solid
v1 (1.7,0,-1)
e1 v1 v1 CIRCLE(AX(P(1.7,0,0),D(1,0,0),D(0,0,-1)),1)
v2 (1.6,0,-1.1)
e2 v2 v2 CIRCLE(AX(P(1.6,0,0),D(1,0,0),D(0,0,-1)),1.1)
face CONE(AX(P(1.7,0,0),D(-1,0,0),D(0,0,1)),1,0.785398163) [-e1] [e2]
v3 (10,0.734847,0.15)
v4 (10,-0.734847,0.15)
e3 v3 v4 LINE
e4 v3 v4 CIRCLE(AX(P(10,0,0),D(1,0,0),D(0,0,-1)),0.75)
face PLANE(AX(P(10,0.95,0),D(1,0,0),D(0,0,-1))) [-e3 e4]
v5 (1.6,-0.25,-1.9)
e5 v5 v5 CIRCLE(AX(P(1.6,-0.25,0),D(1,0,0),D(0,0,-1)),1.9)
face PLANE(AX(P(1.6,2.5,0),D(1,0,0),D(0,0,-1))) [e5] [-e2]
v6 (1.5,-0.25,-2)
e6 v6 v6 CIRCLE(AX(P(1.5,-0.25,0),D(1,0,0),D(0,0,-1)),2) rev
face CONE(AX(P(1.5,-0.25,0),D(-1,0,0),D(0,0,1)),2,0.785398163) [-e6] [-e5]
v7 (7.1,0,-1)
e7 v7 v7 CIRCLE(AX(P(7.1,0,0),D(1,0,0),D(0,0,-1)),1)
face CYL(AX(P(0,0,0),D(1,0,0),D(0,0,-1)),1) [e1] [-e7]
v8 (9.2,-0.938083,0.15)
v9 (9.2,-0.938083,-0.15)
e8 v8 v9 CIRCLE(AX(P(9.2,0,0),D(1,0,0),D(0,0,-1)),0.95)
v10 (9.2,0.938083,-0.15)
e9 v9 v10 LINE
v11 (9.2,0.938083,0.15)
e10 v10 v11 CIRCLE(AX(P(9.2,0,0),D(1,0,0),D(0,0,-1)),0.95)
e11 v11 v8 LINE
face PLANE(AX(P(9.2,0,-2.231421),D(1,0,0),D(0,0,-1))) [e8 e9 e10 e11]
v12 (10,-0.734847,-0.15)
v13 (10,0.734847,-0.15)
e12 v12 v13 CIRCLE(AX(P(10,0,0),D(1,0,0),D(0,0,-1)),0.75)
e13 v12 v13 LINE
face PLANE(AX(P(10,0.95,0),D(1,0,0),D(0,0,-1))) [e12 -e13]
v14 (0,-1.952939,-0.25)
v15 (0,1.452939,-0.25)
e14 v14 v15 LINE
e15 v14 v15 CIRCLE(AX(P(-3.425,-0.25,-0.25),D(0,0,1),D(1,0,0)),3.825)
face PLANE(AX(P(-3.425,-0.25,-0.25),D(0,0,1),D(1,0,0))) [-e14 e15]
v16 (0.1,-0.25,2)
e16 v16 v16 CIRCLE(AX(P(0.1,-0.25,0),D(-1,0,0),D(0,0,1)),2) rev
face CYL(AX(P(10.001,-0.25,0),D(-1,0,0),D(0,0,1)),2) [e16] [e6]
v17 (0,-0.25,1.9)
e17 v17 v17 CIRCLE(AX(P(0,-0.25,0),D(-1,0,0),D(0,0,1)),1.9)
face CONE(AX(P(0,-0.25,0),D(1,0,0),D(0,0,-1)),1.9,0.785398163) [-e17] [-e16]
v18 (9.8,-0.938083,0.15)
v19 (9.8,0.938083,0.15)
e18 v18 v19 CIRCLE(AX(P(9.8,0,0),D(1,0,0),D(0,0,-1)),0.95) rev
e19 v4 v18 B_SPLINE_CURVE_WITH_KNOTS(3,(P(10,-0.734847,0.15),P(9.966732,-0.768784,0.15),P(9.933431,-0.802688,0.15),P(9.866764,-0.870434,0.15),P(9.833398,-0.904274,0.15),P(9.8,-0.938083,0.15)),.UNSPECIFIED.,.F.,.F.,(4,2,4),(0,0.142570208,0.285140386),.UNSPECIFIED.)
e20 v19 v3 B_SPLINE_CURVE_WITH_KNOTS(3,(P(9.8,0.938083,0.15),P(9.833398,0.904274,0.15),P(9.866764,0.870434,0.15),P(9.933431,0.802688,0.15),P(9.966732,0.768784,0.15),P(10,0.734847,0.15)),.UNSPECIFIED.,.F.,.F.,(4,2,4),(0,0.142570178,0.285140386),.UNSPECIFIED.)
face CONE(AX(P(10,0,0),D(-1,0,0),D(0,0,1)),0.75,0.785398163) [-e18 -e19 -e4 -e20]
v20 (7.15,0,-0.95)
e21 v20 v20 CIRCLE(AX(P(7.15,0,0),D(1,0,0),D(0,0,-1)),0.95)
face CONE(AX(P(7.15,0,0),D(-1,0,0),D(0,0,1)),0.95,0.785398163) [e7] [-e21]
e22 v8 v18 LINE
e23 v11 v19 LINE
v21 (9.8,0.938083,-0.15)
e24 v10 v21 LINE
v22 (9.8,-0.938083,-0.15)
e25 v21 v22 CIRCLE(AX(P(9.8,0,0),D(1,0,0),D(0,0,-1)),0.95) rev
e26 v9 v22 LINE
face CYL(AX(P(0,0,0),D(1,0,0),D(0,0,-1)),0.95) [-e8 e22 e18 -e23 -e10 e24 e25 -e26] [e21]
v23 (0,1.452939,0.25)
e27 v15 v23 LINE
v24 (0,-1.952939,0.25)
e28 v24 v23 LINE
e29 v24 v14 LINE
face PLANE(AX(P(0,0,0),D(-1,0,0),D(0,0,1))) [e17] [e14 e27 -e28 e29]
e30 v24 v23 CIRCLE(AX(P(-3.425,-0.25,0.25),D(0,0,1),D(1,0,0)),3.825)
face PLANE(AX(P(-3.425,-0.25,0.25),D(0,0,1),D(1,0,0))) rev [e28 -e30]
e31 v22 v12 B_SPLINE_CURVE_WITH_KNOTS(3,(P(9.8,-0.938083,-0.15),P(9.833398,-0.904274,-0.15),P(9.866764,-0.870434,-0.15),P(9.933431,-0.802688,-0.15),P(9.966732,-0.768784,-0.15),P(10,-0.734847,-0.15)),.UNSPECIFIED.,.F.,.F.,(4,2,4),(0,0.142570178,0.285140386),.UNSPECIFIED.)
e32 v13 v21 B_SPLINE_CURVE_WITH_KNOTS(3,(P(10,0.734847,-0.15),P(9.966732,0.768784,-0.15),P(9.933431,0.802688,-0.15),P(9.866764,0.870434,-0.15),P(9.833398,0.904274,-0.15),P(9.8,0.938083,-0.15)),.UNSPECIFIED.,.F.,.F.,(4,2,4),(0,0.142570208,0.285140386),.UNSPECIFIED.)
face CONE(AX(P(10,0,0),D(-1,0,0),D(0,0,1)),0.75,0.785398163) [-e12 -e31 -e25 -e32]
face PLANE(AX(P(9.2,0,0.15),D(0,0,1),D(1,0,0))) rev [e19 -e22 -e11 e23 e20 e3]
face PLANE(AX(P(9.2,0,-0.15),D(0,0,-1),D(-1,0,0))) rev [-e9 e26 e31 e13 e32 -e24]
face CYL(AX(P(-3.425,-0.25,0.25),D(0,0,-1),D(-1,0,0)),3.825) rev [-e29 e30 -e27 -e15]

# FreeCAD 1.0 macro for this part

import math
import FreeCAD as App
import Part
import Sketcher
Q = App.Units.Quantity


def edges_at(feature, points):
    """Names of the edges that pass closest to the given points."""
    edges = feature.Shape.Edges
    near = lambda p: min(range(len(edges)), key=lambda i: edges[i].distToShape(Part.Vertex(*p))[0])
    return sorted({f"Edge{near(p) + 1}" for p in points})


def add_polygon(sketch, points):
    """Adds a closed chain of lines whose ends are joined by coincident constraints."""
    first, n = sketch.GeometryCount, len(points)
    for a, b in zip(points, points[1:] + points[:1]):
        sketch.addGeometry(Part.LineSegment(App.Vector(*a, 0), App.Vector(*b, 0)), False)
    for i in range(n):
        sketch.addConstraint(Sketcher.Constraint("Coincident", first + i, 2, first + (i + 1) % n, 1))

doc = App.newDocument("Part")
body = doc.addObject("PartDesign::Body", "Body")

# Sketch on XY plane
sketch1 = body.newObject("Sketcher::SketchObject", "Sketch")
sketch1.AttachmentSupport = (doc.getObject("XY_Plane"), [""])
sketch1.MapMode = "FlatFace"
add_polygon(sketch1, [(0, 2.5), (0, 0), (10, 0), (10, 0.95), (7.15, 0.95), (7.1, 1), (1.7, 1), (1.6, 1.1), (1.6, 2.5)])  # lines 0-8
sketch1.addConstraint(Sketcher.Constraint("Vertical", 0))
sketch1.addConstraint(Sketcher.Constraint("Horizontal", 1))
sketch1.addConstraint(Sketcher.Constraint("Vertical", 2))
sketch1.addConstraint(Sketcher.Constraint("Horizontal", 3))
sketch1.addConstraint(Sketcher.Constraint("Horizontal", 5))
sketch1.addConstraint(Sketcher.Constraint("Vertical", 7))
sketch1.addConstraint(Sketcher.Constraint("Horizontal", 8))
sketch1.addConstraint(Sketcher.Constraint("Coincident", 0, 2, -1, 1))
sketch1.addConstraint(Sketcher.Constraint("Parallel", 4, 6))
sketch1.addConstraint(Sketcher.Constraint("DistanceX", 1, 1, 1, 2, 10.0))
sketch1.addConstraint(Sketcher.Constraint("Angle", 4, Q("135 deg")))
sketch1.addConstraint(Sketcher.Constraint("DistanceX", 5, 2, 5, 1, 5.4))
sketch1.addConstraint(Sketcher.Constraint("DistanceX", 8, 2, 8, 1, 1.6))
sketch1.addConstraint(Sketcher.Constraint("DistanceY", 0, 2, 0, 1, 2.5))
sketch1.addConstraint(Sketcher.Constraint("DistanceY", 7, 1, 7, 2, 1.4))
sketch1.addConstraint(Sketcher.Constraint("DistanceY", -1, 1, 4, 2, 1.0))
sketch1.addConstraint(Sketcher.Constraint("DistanceX", 3, 2, 3, 1, 2.85))
revolution = body.newObject("PartDesign::Revolution", "Revolution")
revolution.Profile = sketch1
revolution.ReferenceAxis = (sketch1, ["H_Axis"])
revolution.Angle = 360

# Sketch on YZ plane
sketch2 = body.newObject("Sketcher::SketchObject", "Sketch001")
sketch2.AttachmentSupport = (doc.getObject("YZ_Plane"), [""])
sketch2.MapMode = "FlatFace"
sketch2.addGeometry(Part.Circle(App.Vector(0, 0, 0), App.Vector(0, 0, 1), 2.5), False)
sketch2.addGeometry(Part.Circle(App.Vector(-0.2, 0, 0), App.Vector(0, 0, 1), 2), False)
sketch2.addConstraint(Sketcher.Constraint("Coincident", 0, 3, -1, 1))
sketch2.addConstraint(Sketcher.Constraint("PointOnObject", 1, 3, -1))
sketch2.addConstraint(Sketcher.Constraint("Diameter", 0, 5.0))
sketch2.addConstraint(Sketcher.Constraint("Diameter", 1, 4.0))
sketch2.addConstraint(Sketcher.Constraint("DistanceX", 1, 3, -1, 1, 0.25))
pocket1 = body.newObject("PartDesign::Pocket", "Pocket")
pocket1.Profile = sketch2
pocket1.Type = "UpToFirst"
pocket1.Reversed = True

# Sketch on YZ plane
sketch3 = body.newObject("Sketcher::SketchObject", "Sketch002")
sketch3.AttachmentSupport = (doc.getObject("YZ_Plane"), [""])
sketch3.MapMode = "FlatFace"
sketch3.AttachmentOffset = App.Placement(App.Vector(0, 0, 10), App.Rotation())
sketch3.addGeometry(Part.ArcOfCircle(Part.Circle(App.Vector(0, 0, 0), App.Vector(0, 0, 1), 0.95), math.radians(-9.08), math.radians(9.08)), False)
sketch3.addGeometry(Part.LineSegment(App.Vector(0.94, 0.15, 0), App.Vector(-0.94, 0.15, 0)), False)
sketch3.addGeometry(Part.ArcOfCircle(Part.Circle(App.Vector(0, 0, 0), App.Vector(0, 0, 1), 0.95), math.radians(170.92), math.radians(189.08)), False)
sketch3.addGeometry(Part.LineSegment(App.Vector(-0.94, -0.15, 0), App.Vector(0.94, -0.15, 0)), False)
sketch3.addConstraint(Sketcher.Constraint("Coincident", 0, 2, 1, 1))
sketch3.addConstraint(Sketcher.Constraint("Coincident", 1, 2, 2, 1))
sketch3.addConstraint(Sketcher.Constraint("Coincident", 2, 2, 3, 1))
sketch3.addConstraint(Sketcher.Constraint("Coincident", 3, 2, 0, 1))
sketch3.addConstraint(Sketcher.Constraint("Horizontal", 1))
sketch3.addConstraint(Sketcher.Constraint("Horizontal", 3))
sketch3.addConstraint(Sketcher.Constraint("Coincident", 0, 3, -1, 1))
sketch3.addConstraint(Sketcher.Constraint("Coincident", 2, 3, -1, 1))
sketch3.addConstraint(Sketcher.Constraint("Equal", 0, 2))
sketch3.addConstraint(Sketcher.Constraint("Vertical", 1, 2, 2, 2))
sketch3.addConstraint(Sketcher.Constraint("Radius", 0, 0.95))
sketch3.addConstraint(Sketcher.Constraint("DistanceY", 2, 2, 1, 2, 0.3))
pocket2 = body.newObject("PartDesign::Pocket", "Pocket001")
pocket2.Profile = sketch3
pocket2.Length = 0.8
doc.recompute()

chamfer = body.newObject("PartDesign::Chamfer", "Chamfer")
chamfer.Base = (pocket2, edges_at(pocket2, [(10, 0, 0.95), (10, 0, -0.95)]))
chamfer.Size = 0.2
doc.recompute()

chamfer2 = body.newObject("PartDesign::Chamfer", "Chamfer001")
chamfer2.Base = (chamfer, edges_at(chamfer, [(0, -0.25, -2), (1.6, -0.25, -2)]))
chamfer2.Size = 0.1

# Sketch on XY plane
sketch4 = body.newObject("Sketcher::SketchObject", "Sketch003")
sketch4.AttachmentSupport = (doc.getObject("XY_Plane"), [""])
sketch4.MapMode = "FlatFace"
sketch4.addGeometry(Part.Circle(App.Vector(-3.4, -0.2, 0), App.Vector(0, 0, 1), 3.8), False)
sketch4.addConstraint(Sketcher.Constraint("Diameter", 0, 7.65))
sketch4.addConstraint(Sketcher.Constraint("DistanceY", 0, 3, -1, 1, 0.25))
sketch4.addConstraint(Sketcher.Constraint("DistanceX", 0, 3, -1, 1, 3.425))
pocket3 = body.newObject("PartDesign::Pocket", "Pocket002")
pocket3.Profile = sketch4
pocket3.Type = "TwoLengths"
pocket3.Length = 0.25
pocket3.Length2 = 0.25
pocket3.Reversed = True

doc.recompute()
